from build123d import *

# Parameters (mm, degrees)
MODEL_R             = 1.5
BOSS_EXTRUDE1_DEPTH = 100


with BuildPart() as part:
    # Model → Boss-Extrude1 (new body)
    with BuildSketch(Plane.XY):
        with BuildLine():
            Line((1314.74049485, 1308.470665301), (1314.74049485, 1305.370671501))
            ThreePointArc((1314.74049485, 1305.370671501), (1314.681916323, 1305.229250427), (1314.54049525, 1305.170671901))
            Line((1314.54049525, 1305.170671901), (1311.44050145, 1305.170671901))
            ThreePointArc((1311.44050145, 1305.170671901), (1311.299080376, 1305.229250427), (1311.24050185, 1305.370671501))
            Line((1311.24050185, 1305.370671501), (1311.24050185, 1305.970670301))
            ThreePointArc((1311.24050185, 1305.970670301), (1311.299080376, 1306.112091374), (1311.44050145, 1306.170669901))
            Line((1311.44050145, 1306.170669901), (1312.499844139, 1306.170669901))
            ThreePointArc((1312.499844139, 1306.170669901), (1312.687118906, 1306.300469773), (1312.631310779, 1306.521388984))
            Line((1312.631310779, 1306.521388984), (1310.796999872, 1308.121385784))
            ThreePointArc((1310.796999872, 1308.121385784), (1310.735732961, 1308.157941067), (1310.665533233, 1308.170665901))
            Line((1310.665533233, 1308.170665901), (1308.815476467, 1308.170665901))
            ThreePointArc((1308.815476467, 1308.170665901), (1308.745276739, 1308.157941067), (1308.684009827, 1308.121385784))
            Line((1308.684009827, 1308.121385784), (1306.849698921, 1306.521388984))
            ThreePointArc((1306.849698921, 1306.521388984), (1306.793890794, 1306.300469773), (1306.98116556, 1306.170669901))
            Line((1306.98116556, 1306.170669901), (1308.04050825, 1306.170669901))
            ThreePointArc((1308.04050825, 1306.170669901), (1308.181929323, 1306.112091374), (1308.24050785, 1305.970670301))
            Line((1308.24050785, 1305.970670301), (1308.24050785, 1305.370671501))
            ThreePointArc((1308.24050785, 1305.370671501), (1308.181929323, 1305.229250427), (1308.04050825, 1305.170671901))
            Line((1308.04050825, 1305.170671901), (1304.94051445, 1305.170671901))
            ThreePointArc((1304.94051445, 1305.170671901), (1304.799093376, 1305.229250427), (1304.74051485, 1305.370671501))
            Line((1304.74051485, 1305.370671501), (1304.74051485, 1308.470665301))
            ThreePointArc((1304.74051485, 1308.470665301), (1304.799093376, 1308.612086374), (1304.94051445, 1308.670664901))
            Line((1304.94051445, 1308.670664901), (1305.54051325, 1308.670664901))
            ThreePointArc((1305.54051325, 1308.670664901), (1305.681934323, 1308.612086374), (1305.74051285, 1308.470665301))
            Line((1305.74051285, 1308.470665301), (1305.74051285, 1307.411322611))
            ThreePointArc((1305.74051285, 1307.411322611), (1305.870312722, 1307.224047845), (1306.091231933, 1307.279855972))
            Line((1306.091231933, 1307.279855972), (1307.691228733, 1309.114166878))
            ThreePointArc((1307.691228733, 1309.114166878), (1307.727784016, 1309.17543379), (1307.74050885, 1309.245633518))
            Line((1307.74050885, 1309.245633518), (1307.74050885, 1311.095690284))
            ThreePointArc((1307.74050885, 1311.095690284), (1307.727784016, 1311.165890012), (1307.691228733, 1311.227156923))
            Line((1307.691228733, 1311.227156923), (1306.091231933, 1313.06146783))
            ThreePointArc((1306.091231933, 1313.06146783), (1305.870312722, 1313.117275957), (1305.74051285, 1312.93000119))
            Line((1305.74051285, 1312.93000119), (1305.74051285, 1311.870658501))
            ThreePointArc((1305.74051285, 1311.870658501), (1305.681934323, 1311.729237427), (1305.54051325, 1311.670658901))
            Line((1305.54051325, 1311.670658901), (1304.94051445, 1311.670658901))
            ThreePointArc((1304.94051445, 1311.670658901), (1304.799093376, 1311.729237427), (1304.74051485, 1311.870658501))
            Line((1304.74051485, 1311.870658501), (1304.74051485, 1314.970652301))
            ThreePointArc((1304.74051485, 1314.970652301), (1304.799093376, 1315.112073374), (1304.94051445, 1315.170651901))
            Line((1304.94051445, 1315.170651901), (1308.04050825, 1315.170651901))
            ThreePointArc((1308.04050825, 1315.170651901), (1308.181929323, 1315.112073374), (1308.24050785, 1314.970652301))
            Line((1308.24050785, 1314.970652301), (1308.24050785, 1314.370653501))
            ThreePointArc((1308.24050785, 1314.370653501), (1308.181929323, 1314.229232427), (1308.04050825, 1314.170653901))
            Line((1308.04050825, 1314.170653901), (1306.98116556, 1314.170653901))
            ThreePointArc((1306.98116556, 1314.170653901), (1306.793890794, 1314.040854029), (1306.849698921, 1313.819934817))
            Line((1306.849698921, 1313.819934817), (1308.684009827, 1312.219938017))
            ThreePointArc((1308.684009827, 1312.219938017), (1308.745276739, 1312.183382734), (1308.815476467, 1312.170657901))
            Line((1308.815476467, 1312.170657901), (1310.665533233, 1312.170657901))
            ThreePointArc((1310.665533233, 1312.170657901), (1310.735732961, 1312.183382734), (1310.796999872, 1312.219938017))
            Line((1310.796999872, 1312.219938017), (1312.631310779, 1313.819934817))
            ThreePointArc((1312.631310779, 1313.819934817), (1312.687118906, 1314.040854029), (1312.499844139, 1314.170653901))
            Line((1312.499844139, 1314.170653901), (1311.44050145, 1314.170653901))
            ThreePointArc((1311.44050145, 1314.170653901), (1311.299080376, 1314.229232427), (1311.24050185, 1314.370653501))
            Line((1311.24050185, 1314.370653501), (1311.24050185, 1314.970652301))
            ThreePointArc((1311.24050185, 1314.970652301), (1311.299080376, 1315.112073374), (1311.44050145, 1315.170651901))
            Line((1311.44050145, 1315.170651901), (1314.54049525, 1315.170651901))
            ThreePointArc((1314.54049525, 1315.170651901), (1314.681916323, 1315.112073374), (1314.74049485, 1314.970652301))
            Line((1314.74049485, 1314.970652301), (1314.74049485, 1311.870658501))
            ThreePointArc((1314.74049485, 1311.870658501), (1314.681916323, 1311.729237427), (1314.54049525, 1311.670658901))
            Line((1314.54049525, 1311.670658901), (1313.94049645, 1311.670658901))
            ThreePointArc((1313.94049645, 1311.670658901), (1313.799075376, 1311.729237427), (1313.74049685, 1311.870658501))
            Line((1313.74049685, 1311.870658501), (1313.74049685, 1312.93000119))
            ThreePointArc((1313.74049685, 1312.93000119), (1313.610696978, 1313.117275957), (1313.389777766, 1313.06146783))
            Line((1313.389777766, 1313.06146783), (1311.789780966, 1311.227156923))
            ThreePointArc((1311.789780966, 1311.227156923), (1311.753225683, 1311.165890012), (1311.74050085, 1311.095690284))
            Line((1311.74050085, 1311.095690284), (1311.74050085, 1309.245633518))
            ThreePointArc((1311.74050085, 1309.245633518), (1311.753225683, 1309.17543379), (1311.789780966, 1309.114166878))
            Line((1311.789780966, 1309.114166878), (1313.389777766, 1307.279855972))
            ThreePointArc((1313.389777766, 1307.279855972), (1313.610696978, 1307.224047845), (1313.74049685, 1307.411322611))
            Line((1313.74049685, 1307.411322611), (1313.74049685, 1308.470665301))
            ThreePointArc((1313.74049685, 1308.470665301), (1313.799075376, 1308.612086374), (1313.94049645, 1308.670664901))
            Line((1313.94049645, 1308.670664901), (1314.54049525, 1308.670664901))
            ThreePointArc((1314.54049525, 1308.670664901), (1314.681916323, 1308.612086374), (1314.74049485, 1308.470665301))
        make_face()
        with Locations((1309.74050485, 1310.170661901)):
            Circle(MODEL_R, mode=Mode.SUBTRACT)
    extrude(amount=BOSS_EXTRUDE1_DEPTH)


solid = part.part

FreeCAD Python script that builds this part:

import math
import FreeCAD as App
import Part
import Sketcher

V = App.Vector
Q = App.Units.Quantity

doc = App.newDocument("Part")
body = doc.addObject("PartDesign::Body", "Body")

# Sketch on XY plane
sketch1 = doc.addObject("Sketcher::SketchObject", "Sketch")
body.addObject(sketch1)
sketch1.AttachmentSupport = (doc.XY_Plane, [""])
sketch1.MapMode = "FlatFace"
sketch1.addGeometry([
    Part.LineSegment(V(1314.74, 1305.37, 0), V(1314.74, 1308.47, 0)),  # 0
    Part.ArcOfCircle(Part.Circle(V(1314.54, 1308.47, 0), V(0, 0, 1), 0.2), math.radians(0), math.radians(90)),  # 1
    Part.LineSegment(V(1314.54, 1308.67, 0), V(1313.94, 1308.67, 0)),  # 2
    Part.ArcOfCircle(Part.Circle(V(1313.94, 1308.47, 0), V(0, 0, 1), 0.2), math.radians(90), math.radians(180)),  # 3
    Part.LineSegment(V(1313.74, 1308.47, 0), V(1313.74, 1307.41, 0)),  # 4
    Part.ArcOfCircle(Part.Circle(V(1313.54, 1307.41, 0), V(0, 0, 1), 0.2), math.radians(-139), math.radians(0)),  # 5
    Part.LineSegment(V(1313.39, 1307.28, 0), V(1311.79, 1309.11, 0)),  # 6
    Part.ArcOfCircle(Part.Circle(V(1311.94, 1309.25, 0), V(0, 0, 1), 0.2), math.radians(180), math.radians(221)),  # 7
    Part.LineSegment(V(1311.74, 1309.25, 0), V(1311.74, 1311.1, 0)),  # 8
    Part.ArcOfCircle(Part.Circle(V(1311.94, 1311.1, 0), V(0, 0, 1), 0.2), math.radians(139), math.radians(180)),  # 9
    Part.LineSegment(V(1311.79, 1311.23, 0), V(1313.39, 1313.06, 0)),  # 10
    Part.ArcOfCircle(Part.Circle(V(1313.54, 1312.93, 0), V(0, 0, 1), 0.2), math.radians(0), math.radians(139)),  # 11
    Part.LineSegment(V(1313.74, 1312.93, 0), V(1313.74, 1311.87, 0)),  # 12
    Part.ArcOfCircle(Part.Circle(V(1313.94, 1311.87, 0), V(0, 0, 1), 0.2), math.radians(180), math.radians(270)),  # 13
    Part.LineSegment(V(1313.94, 1311.67, 0), V(1314.54, 1311.67, 0)),  # 14
    Part.ArcOfCircle(Part.Circle(V(1314.54, 1311.87, 0), V(0, 0, 1), 0.2), math.radians(-90), math.radians(0)),  # 15
    Part.LineSegment(V(1314.74, 1311.87, 0), V(1314.74, 1314.97, 0)),  # 16
    Part.ArcOfCircle(Part.Circle(V(1314.54, 1314.97, 0), V(0, 0, 1), 0.2), math.radians(0), math.radians(90)),  # 17
    Part.LineSegment(V(1314.54, 1315.17, 0), V(1311.44, 1315.17, 0)),  # 18
    Part.ArcOfCircle(Part.Circle(V(1311.44, 1314.97, 0), V(0, 0, 1), 0.2), math.radians(90), math.radians(180)),  # 19
    Part.LineSegment(V(1311.24, 1314.97, 0), V(1311.24, 1314.37, 0)),  # 20
    Part.ArcOfCircle(Part.Circle(V(1311.44, 1314.37, 0), V(0, 0, 1), 0.2), math.radians(180), math.radians(270)),  # 21
    Part.LineSegment(V(1311.44, 1314.17, 0), V(1312.5, 1314.17, 0)),  # 22
    Part.ArcOfCircle(Part.Circle(V(1312.5, 1313.97, 0), V(0, 0, 1), 0.2), math.radians(-49), math.radians(90)),  # 23
    Part.LineSegment(V(1312.63, 1313.82, 0), V(1310.8, 1312.22, 0)),  # 24
    Part.ArcOfCircle(Part.Circle(V(1310.67, 1312.37, 0), V(0, 0, 1), 0.2), math.radians(-90), math.radians(-49)),  # 25
    Part.LineSegment(V(1310.67, 1312.17, 0), V(1308.82, 1312.17, 0)),  # 26
    Part.ArcOfCircle(Part.Circle(V(1308.82, 1312.37, 0), V(0, 0, 1), 0.2), math.radians(-131), math.radians(-90)),  # 27
    Part.LineSegment(V(1308.68, 1312.22, 0), V(1306.85, 1313.82, 0)),  # 28
    Part.ArcOfCircle(Part.Circle(V(1306.98, 1313.97, 0), V(0, 0, 1), 0.2), math.radians(90), math.radians(229)),  # 29
    Part.LineSegment(V(1306.98, 1314.17, 0), V(1308.04, 1314.17, 0)),  # 30
    Part.ArcOfCircle(Part.Circle(V(1308.04, 1314.37, 0), V(0, 0, 1), 0.2), math.radians(-90), math.radians(0)),  # 31
    Part.LineSegment(V(1308.24, 1314.37, 0), V(1308.24, 1314.97, 0)),  # 32
    Part.ArcOfCircle(Part.Circle(V(1308.04, 1314.97, 0), V(0, 0, 1), 0.2), math.radians(0), math.radians(90)),  # 33
    Part.LineSegment(V(1308.04, 1315.17, 0), V(1304.94, 1315.17, 0)),  # 34
    Part.ArcOfCircle(Part.Circle(V(1304.94, 1314.97, 0), V(0, 0, 1), 0.2), math.radians(90), math.radians(180)),  # 35
    Part.LineSegment(V(1304.74, 1314.97, 0), V(1304.74, 1311.87, 0)),  # 36
    Part.ArcOfCircle(Part.Circle(V(1304.94, 1311.87, 0), V(0, 0, 1), 0.2), math.radians(180), math.radians(270)),  # 37
    Part.LineSegment(V(1304.94, 1311.67, 0), V(1305.54, 1311.67, 0)),  # 38
    Part.ArcOfCircle(Part.Circle(V(1305.54, 1311.87, 0), V(0, 0, 1), 0.2), math.radians(-90), math.radians(0)),  # 39
    Part.LineSegment(V(1305.74, 1311.87, 0), V(1305.74, 1312.93, 0)),  # 40
    Part.ArcOfCircle(Part.Circle(V(1305.94, 1312.93, 0), V(0, 0, 1), 0.2), math.radians(41), math.radians(180)),  # 41
    Part.LineSegment(V(1306.09, 1313.06, 0), V(1307.69, 1311.23, 0)),  # 42
    Part.ArcOfCircle(Part.Circle(V(1307.54, 1311.1, 0), V(0, 0, 1), 0.2), math.radians(0), math.radians(41)),  # 43
    Part.LineSegment(V(1307.74, 1311.1, 0), V(1307.74, 1309.25, 0)),  # 44
    Part.ArcOfCircle(Part.Circle(V(1307.54, 1309.25, 0), V(0, 0, 1), 0.2), math.radians(-41), math.radians(0)),  # 45
    Part.LineSegment(V(1307.69, 1309.11, 0), V(1306.09, 1307.28, 0)),  # 46
    Part.ArcOfCircle(Part.Circle(V(1305.94, 1307.41, 0), V(0, 0, 1), 0.2), math.radians(180), math.radians(319)),  # 47
    Part.LineSegment(V(1305.74, 1307.41, 0), V(1305.74, 1308.47, 0)),  # 48
    Part.ArcOfCircle(Part.Circle(V(1305.54, 1308.47, 0), V(0, 0, 1), 0.2), math.radians(0), math.radians(90)),  # 49
    Part.LineSegment(V(1305.54, 1308.67, 0), V(1304.94, 1308.67, 0)),  # 50
    Part.ArcOfCircle(Part.Circle(V(1304.94, 1308.47, 0), V(0, 0, 1), 0.2), math.radians(90), math.radians(180)),  # 51
    Part.LineSegment(V(1304.74, 1308.47, 0), V(1304.74, 1305.37, 0)),  # 52
    Part.ArcOfCircle(Part.Circle(V(1304.94, 1305.37, 0), V(0, 0, 1), 0.2), math.radians(180), math.radians(270)),  # 53
    Part.LineSegment(V(1304.94, 1305.17, 0), V(1308.04, 1305.17, 0)),  # 54
    Part.ArcOfCircle(Part.Circle(V(1308.04, 1305.37, 0), V(0, 0, 1), 0.2), math.radians(-90), math.radians(0)),  # 55
    Part.LineSegment(V(1308.24, 1305.37, 0), V(1308.24, 1305.97, 0)),  # 56
    Part.ArcOfCircle(Part.Circle(V(1308.04, 1305.97, 0), V(0, 0, 1), 0.2), math.radians(0), math.radians(90)),  # 57
    Part.LineSegment(V(1308.04, 1306.17, 0), V(1306.98, 1306.17, 0)),  # 58
    Part.ArcOfCircle(Part.Circle(V(1306.98, 1306.37, 0), V(0, 0, 1), 0.2), math.radians(131), math.radians(270)),  # 59
    Part.LineSegment(V(1306.85, 1306.52, 0), V(1308.68, 1308.12, 0)),  # 60
    Part.ArcOfCircle(Part.Circle(V(1308.82, 1307.97, 0), V(0, 0, 1), 0.2), math.radians(90), math.radians(131)),  # 61
    Part.LineSegment(V(1308.82, 1308.17, 0), V(1310.67, 1308.17, 0)),  # 62
    Part.ArcOfCircle(Part.Circle(V(1310.67, 1307.97, 0), V(0, 0, 1), 0.2), math.radians(49), math.radians(90)),  # 63
    Part.LineSegment(V(1310.8, 1308.12, 0), V(1312.63, 1306.52, 0)),  # 64
    Part.ArcOfCircle(Part.Circle(V(1312.5, 1306.37, 0), V(0, 0, 1), 0.2), math.radians(-90), math.radians(49)),  # 65
    Part.LineSegment(V(1312.5, 1306.17, 0), V(1311.44, 1306.17, 0)),  # 66
    Part.ArcOfCircle(Part.Circle(V(1311.44, 1305.97, 0), V(0, 0, 1), 0.2), math.radians(90), math.radians(180)),  # 67
    Part.LineSegment(V(1311.24, 1305.97, 0), V(1311.24, 1305.37, 0)),  # 68
    Part.ArcOfCircle(Part.Circle(V(1311.44, 1305.37, 0), V(0, 0, 1), 0.2), math.radians(180), math.radians(270)),  # 69
    Part.LineSegment(V(1311.44, 1305.17, 0), V(1314.54, 1305.17, 0)),  # 70
    Part.ArcOfCircle(Part.Circle(V(1314.54, 1305.37, 0), V(0, 0, 1), 0.2), math.radians(-90), math.radians(0)),  # 71
    Part.Circle(V(1309.74, 1310.17, 0), V(0, 0, 1), 1.5),  # 72
], False)
sketch1.addConstraint([
    Sketcher.Constraint("Tangent", 0, 2, 1, 1),
    Sketcher.Constraint("Tangent", 1, 2, 2, 1),
    Sketcher.Constraint("Tangent", 2, 2, 3, 1),
    Sketcher.Constraint("Tangent", 3, 2, 4, 1),
    Sketcher.Constraint("Tangent", 4, 2, 5, 2),
    Sketcher.Constraint("Tangent", 5, 1, 6, 1),
    Sketcher.Constraint("Tangent", 6, 2, 7, 2),
    Sketcher.Constraint("Tangent", 7, 1, 8, 1),
    Sketcher.Constraint("Tangent", 8, 2, 9, 2),
    Sketcher.Constraint("Tangent", 9, 1, 10, 1),
    Sketcher.Constraint("Tangent", 10, 2, 11, 2),
    Sketcher.Constraint("Tangent", 11, 1, 12, 1),
    Sketcher.Constraint("Tangent", 12, 2, 13, 1),
    Sketcher.Constraint("Tangent", 13, 2, 14, 1),
    Sketcher.Constraint("Tangent", 14, 2, 15, 1),
    Sketcher.Constraint("Tangent", 15, 2, 16, 1),
    Sketcher.Constraint("Tangent", 16, 2, 17, 1),
    Sketcher.Constraint("Tangent", 17, 2, 18, 1),
    Sketcher.Constraint("Tangent", 18, 2, 19, 1),
    Sketcher.Constraint("Tangent", 19, 2, 20, 1),
    Sketcher.Constraint("Tangent", 20, 2, 21, 1),
    Sketcher.Constraint("Tangent", 21, 2, 22, 1),
    Sketcher.Constraint("Tangent", 22, 2, 23, 2),
    Sketcher.Constraint("Tangent", 23, 1, 24, 1),
    Sketcher.Constraint("Tangent", 24, 2, 25, 2),
    Sketcher.Constraint("Tangent", 25, 1, 26, 1),
    Sketcher.Constraint("Tangent", 26, 2, 27, 2),
    Sketcher.Constraint("Tangent", 27, 1, 28, 1),
    Sketcher.Constraint("Tangent", 28, 2, 29, 2),
    Sketcher.Constraint("Tangent", 29, 1, 30, 1),
    Sketcher.Constraint("Tangent", 30, 2, 31, 1),
    Sketcher.Constraint("Tangent", 31, 2, 32, 1),
    Sketcher.Constraint("Tangent", 32, 2, 33, 1),
    Sketcher.Constraint("Tangent", 33, 2, 34, 1),
    Sketcher.Constraint("Tangent", 34, 2, 35, 1),
    Sketcher.Constraint("Tangent", 35, 2, 36, 1),
    Sketcher.Constraint("Tangent", 36, 2, 37, 1),
    Sketcher.Constraint("Tangent", 37, 2, 38, 1),
    Sketcher.Constraint("Tangent", 38, 2, 39, 1),
    Sketcher.Constraint("Tangent", 39, 2, 40, 1),
    Sketcher.Constraint("Tangent", 40, 2, 41, 2),
    Sketcher.Constraint("Tangent", 41, 1, 42, 1),
    Sketcher.Constraint("Tangent", 42, 2, 43, 2),
    Sketcher.Constraint("Tangent", 43, 1, 44, 1),
    Sketcher.Constraint("Tangent", 44, 2, 45, 2),
    Sketcher.Constraint("Tangent", 45, 1, 46, 1),
    Sketcher.Constraint("Tangent", 46, 2, 47, 2),
    Sketcher.Constraint("Tangent", 47, 1, 48, 1),
    Sketcher.Constraint("Tangent", 48, 2, 49, 1),
    Sketcher.Constraint("Tangent", 49, 2, 50, 1),
    Sketcher.Constraint("Tangent", 50, 2, 51, 1),
    Sketcher.Constraint("Tangent", 51, 2, 52, 1),
    Sketcher.Constraint("Tangent", 52, 2, 53, 1),
    Sketcher.Constraint("Tangent", 53, 2, 54, 1),
    Sketcher.Constraint("Tangent", 54, 2, 55, 1),
    Sketcher.Constraint("Tangent", 55, 2, 56, 1),
    Sketcher.Constraint("Tangent", 56, 2, 57, 1),
    Sketcher.Constraint("Tangent", 57, 2, 58, 1),
    Sketcher.Constraint("Tangent", 58, 2, 59, 2),
    Sketcher.Constraint("Tangent", 59, 1, 60, 1),
    Sketcher.Constraint("Tangent", 60, 2, 61, 2),
    Sketcher.Constraint("Tangent", 61, 1, 62, 1),
    Sketcher.Constraint("Tangent", 62, 2, 63, 2),
    Sketcher.Constraint("Tangent", 63, 1, 64, 1),
    Sketcher.Constraint("Tangent", 64, 2, 65, 2),
    Sketcher.Constraint("Tangent", 65, 1, 66, 1),
    Sketcher.Constraint("Tangent", 66, 2, 67, 1),
    Sketcher.Constraint("Tangent", 67, 2, 68, 1),
    Sketcher.Constraint("Tangent", 68, 2, 69, 1),
    Sketcher.Constraint("Tangent", 69, 2, 70, 1),
    Sketcher.Constraint("Tangent", 70, 2, 71, 1),
    Sketcher.Constraint("Tangent", 71, 2, 0, 1),
    Sketcher.Constraint("Vertical", 0),
    Sketcher.Constraint("Horizontal", 2),
    Sketcher.Constraint("Vertical", 4),
    Sketcher.Constraint("Vertical", 8),
    Sketcher.Constraint("Vertical", 12),
    Sketcher.Constraint("Horizontal", 14),
    Sketcher.Constraint("Vertical", 16),
    Sketcher.Constraint("Horizontal", 18),
    Sketcher.Constraint("Vertical", 20),
    Sketcher.Constraint("Horizontal", 22),
    Sketcher.Constraint("Horizontal", 26),
    Sketcher.Constraint("Horizontal", 30),
    Sketcher.Constraint("Vertical", 32),
    Sketcher.Constraint("Horizontal", 34),
    Sketcher.Constraint("Vertical", 36),
    Sketcher.Constraint("Horizontal", 38),
    Sketcher.Constraint("Vertical", 40),
    Sketcher.Constraint("Vertical", 44),
    Sketcher.Constraint("Vertical", 48),
    Sketcher.Constraint("Horizontal", 50),
    Sketcher.Constraint("Vertical", 52),
    Sketcher.Constraint("Horizontal", 54),
    Sketcher.Constraint("Vertical", 56),
    Sketcher.Constraint("Horizontal", 58),
    Sketcher.Constraint("Horizontal", 62),
    Sketcher.Constraint("Horizontal", 66),
    Sketcher.Constraint("Vertical", 68),
    Sketcher.Constraint("Horizontal", 70),
    Sketcher.Constraint("Equal", 1, 3),
    Sketcher.Constraint("Equal", 3, 5),
    Sketcher.Constraint("Equal", 5, 7),
    Sketcher.Constraint("Equal", 7, 9),
    Sketcher.Constraint("Equal", 9, 11),
    Sketcher.Constraint("Equal", 11, 13),
    Sketcher.Constraint("Equal", 13, 15),
    Sketcher.Constraint("Equal", 15, 17),
    Sketcher.Constraint("Equal", 17, 19),
    Sketcher.Constraint("Equal", 19, 21),
    Sketcher.Constraint("Equal", 21, 23),
    Sketcher.Constraint("Equal", 23, 25),
    Sketcher.Constraint("Equal", 25, 27),
    Sketcher.Constraint("Equal", 27, 29),
    Sketcher.Constraint("Equal", 29, 31),
    Sketcher.Constraint("Equal", 31, 33),
    Sketcher.Constraint("Equal", 33, 35),
    Sketcher.Constraint("Equal", 35, 37),
    Sketcher.Constraint("Equal", 37, 39),
    Sketcher.Constraint("Equal", 39, 41),
    Sketcher.Constraint("Equal", 41, 43),
    Sketcher.Constraint("Equal", 43, 45),
    Sketcher.Constraint("Equal", 45, 47),
    Sketcher.Constraint("Equal", 47, 49),
    Sketcher.Constraint("Equal", 49, 51),
    Sketcher.Constraint("Equal", 51, 53),
    Sketcher.Constraint("Equal", 53, 55),
    Sketcher.Constraint("Equal", 55, 57),
    Sketcher.Constraint("Equal", 57, 59),
    Sketcher.Constraint("Equal", 59, 61),
    Sketcher.Constraint("Equal", 61, 63),
    Sketcher.Constraint("Equal", 63, 65),
    Sketcher.Constraint("Equal", 65, 67),
    Sketcher.Constraint("Equal", 67, 69),
    Sketcher.Constraint("Equal", 69, 71),
    Sketcher.Constraint("Perpendicular", 6, 24),
    Sketcher.Constraint("Perpendicular", 10, 28),
    Sketcher.Constraint("Perpendicular", 24, 42),
    Sketcher.Constraint("Perpendicular", 28, 46),
    Sketcher.Constraint("Perpendicular", 42, 60),
    Sketcher.Constraint("Perpendicular", 46, 64),
    Sketcher.Constraint("Horizontal", 23, 3, 29, 3),
    Sketcher.Constraint("Horizontal", 19, 3, 33, 3),
    Sketcher.Constraint("Horizontal", 15, 3, 37, 3),
    Sketcher.Constraint("Horizontal", 11, 3, 41, 3),
    Sketcher.Constraint("Horizontal", 9, 3, 43, 3),
    Sketcher.Constraint("Horizontal", 7, 3, 45, 3),
    Sketcher.Constraint("Horizontal", 5, 3, 47, 3),
    Sketcher.Constraint("Horizontal", 3, 3, 49, 3),
    Sketcher.Constraint("Horizontal", 59, 3, 65, 3),
    Sketcher.Constraint("Horizontal", 55, 3, 69, 3),
    Sketcher.Constraint("Horizontal", 24, 2, 27, 1),
    Sketcher.Constraint("Vertical", 5, 3, 11, 3),
    Sketcher.Constraint("Vertical", 1, 3, 15, 3),
    Sketcher.Constraint("Vertical", 37, 3, 51, 3),
    Sketcher.Constraint("Vertical", 33, 3, 55, 3),
    Sketcher.Constraint("Vertical", 29, 3, 59, 3),
    Sketcher.Constraint("Vertical", 27, 3, 61, 3),
    Sketcher.Constraint("Vertical", 25, 3, 63, 3),
    Sketcher.Constraint("Vertical", 21, 3, 67, 3),
    Sketcher.Constraint("Equal", 22, 30),
    Sketcher.Constraint("Equal", 18, 34),
    Sketcher.Constraint("Equal", 14, 38),
    Sketcher.Constraint("Equal", 70, 0),
    Sketcher.Constraint("Equal", 66, 4),
    Sketcher.Constraint("Equal", 62, 8),
    Sketcher.Constraint("Equal", 4, 12),
    Sketcher.Constraint("Equal", 0, 16),
    Sketcher.Constraint("Equal", 50, 20),
    Sketcher.Constraint("Equal", 32, 56),
    Sketcher.Constraint("Equal", 10, 24),
    Sketcher.Constraint("Diameter", 72, Q("3 mm")),
    Sketcher.Constraint("Radius", 1, Q("0.2 mm")),
    Sketcher.Constraint("DistanceX", 2, 2, 2, 1, Q("0.599999 mm")),
    Sketcher.Constraint("DistanceY", -1, 1, 11, 3, Q("1312.930001 mm")),
    Sketcher.Constraint("DistanceX", -1, 1, 24, 2, Q("1310.797 mm")),
    Sketcher.Constraint("DistanceX", -1, 1, 7, 3, Q("1311.9405 mm")),
    Sketcher.Constraint("DistanceX", -1, 1, 19, 3, Q("1311.440501 mm")),
    Sketcher.Constraint("DistanceX", -1, 1, 28, 2, Q("1306.849699 mm")),
    Sketcher.Constraint("DistanceX", 18, 2, 18, 1, Q("3.099994 mm")),
    Sketcher.Constraint("DistanceX", 22, 1, 22, 2, Q("1.059343 mm")),
    Sketcher.Constraint("DistanceY", -1, 1, 72, 3, Q("1310.170662 mm")),
    Sketcher.Constraint("DistanceX", -1, 1, 72, 3, Q("1309.740505 mm")),
])
pad1 = doc.addObject("PartDesign::Pad", "Pad")
body.addObject(pad1)
pad1.Profile = sketch1
pad1.Length = 100

doc.recompute()
